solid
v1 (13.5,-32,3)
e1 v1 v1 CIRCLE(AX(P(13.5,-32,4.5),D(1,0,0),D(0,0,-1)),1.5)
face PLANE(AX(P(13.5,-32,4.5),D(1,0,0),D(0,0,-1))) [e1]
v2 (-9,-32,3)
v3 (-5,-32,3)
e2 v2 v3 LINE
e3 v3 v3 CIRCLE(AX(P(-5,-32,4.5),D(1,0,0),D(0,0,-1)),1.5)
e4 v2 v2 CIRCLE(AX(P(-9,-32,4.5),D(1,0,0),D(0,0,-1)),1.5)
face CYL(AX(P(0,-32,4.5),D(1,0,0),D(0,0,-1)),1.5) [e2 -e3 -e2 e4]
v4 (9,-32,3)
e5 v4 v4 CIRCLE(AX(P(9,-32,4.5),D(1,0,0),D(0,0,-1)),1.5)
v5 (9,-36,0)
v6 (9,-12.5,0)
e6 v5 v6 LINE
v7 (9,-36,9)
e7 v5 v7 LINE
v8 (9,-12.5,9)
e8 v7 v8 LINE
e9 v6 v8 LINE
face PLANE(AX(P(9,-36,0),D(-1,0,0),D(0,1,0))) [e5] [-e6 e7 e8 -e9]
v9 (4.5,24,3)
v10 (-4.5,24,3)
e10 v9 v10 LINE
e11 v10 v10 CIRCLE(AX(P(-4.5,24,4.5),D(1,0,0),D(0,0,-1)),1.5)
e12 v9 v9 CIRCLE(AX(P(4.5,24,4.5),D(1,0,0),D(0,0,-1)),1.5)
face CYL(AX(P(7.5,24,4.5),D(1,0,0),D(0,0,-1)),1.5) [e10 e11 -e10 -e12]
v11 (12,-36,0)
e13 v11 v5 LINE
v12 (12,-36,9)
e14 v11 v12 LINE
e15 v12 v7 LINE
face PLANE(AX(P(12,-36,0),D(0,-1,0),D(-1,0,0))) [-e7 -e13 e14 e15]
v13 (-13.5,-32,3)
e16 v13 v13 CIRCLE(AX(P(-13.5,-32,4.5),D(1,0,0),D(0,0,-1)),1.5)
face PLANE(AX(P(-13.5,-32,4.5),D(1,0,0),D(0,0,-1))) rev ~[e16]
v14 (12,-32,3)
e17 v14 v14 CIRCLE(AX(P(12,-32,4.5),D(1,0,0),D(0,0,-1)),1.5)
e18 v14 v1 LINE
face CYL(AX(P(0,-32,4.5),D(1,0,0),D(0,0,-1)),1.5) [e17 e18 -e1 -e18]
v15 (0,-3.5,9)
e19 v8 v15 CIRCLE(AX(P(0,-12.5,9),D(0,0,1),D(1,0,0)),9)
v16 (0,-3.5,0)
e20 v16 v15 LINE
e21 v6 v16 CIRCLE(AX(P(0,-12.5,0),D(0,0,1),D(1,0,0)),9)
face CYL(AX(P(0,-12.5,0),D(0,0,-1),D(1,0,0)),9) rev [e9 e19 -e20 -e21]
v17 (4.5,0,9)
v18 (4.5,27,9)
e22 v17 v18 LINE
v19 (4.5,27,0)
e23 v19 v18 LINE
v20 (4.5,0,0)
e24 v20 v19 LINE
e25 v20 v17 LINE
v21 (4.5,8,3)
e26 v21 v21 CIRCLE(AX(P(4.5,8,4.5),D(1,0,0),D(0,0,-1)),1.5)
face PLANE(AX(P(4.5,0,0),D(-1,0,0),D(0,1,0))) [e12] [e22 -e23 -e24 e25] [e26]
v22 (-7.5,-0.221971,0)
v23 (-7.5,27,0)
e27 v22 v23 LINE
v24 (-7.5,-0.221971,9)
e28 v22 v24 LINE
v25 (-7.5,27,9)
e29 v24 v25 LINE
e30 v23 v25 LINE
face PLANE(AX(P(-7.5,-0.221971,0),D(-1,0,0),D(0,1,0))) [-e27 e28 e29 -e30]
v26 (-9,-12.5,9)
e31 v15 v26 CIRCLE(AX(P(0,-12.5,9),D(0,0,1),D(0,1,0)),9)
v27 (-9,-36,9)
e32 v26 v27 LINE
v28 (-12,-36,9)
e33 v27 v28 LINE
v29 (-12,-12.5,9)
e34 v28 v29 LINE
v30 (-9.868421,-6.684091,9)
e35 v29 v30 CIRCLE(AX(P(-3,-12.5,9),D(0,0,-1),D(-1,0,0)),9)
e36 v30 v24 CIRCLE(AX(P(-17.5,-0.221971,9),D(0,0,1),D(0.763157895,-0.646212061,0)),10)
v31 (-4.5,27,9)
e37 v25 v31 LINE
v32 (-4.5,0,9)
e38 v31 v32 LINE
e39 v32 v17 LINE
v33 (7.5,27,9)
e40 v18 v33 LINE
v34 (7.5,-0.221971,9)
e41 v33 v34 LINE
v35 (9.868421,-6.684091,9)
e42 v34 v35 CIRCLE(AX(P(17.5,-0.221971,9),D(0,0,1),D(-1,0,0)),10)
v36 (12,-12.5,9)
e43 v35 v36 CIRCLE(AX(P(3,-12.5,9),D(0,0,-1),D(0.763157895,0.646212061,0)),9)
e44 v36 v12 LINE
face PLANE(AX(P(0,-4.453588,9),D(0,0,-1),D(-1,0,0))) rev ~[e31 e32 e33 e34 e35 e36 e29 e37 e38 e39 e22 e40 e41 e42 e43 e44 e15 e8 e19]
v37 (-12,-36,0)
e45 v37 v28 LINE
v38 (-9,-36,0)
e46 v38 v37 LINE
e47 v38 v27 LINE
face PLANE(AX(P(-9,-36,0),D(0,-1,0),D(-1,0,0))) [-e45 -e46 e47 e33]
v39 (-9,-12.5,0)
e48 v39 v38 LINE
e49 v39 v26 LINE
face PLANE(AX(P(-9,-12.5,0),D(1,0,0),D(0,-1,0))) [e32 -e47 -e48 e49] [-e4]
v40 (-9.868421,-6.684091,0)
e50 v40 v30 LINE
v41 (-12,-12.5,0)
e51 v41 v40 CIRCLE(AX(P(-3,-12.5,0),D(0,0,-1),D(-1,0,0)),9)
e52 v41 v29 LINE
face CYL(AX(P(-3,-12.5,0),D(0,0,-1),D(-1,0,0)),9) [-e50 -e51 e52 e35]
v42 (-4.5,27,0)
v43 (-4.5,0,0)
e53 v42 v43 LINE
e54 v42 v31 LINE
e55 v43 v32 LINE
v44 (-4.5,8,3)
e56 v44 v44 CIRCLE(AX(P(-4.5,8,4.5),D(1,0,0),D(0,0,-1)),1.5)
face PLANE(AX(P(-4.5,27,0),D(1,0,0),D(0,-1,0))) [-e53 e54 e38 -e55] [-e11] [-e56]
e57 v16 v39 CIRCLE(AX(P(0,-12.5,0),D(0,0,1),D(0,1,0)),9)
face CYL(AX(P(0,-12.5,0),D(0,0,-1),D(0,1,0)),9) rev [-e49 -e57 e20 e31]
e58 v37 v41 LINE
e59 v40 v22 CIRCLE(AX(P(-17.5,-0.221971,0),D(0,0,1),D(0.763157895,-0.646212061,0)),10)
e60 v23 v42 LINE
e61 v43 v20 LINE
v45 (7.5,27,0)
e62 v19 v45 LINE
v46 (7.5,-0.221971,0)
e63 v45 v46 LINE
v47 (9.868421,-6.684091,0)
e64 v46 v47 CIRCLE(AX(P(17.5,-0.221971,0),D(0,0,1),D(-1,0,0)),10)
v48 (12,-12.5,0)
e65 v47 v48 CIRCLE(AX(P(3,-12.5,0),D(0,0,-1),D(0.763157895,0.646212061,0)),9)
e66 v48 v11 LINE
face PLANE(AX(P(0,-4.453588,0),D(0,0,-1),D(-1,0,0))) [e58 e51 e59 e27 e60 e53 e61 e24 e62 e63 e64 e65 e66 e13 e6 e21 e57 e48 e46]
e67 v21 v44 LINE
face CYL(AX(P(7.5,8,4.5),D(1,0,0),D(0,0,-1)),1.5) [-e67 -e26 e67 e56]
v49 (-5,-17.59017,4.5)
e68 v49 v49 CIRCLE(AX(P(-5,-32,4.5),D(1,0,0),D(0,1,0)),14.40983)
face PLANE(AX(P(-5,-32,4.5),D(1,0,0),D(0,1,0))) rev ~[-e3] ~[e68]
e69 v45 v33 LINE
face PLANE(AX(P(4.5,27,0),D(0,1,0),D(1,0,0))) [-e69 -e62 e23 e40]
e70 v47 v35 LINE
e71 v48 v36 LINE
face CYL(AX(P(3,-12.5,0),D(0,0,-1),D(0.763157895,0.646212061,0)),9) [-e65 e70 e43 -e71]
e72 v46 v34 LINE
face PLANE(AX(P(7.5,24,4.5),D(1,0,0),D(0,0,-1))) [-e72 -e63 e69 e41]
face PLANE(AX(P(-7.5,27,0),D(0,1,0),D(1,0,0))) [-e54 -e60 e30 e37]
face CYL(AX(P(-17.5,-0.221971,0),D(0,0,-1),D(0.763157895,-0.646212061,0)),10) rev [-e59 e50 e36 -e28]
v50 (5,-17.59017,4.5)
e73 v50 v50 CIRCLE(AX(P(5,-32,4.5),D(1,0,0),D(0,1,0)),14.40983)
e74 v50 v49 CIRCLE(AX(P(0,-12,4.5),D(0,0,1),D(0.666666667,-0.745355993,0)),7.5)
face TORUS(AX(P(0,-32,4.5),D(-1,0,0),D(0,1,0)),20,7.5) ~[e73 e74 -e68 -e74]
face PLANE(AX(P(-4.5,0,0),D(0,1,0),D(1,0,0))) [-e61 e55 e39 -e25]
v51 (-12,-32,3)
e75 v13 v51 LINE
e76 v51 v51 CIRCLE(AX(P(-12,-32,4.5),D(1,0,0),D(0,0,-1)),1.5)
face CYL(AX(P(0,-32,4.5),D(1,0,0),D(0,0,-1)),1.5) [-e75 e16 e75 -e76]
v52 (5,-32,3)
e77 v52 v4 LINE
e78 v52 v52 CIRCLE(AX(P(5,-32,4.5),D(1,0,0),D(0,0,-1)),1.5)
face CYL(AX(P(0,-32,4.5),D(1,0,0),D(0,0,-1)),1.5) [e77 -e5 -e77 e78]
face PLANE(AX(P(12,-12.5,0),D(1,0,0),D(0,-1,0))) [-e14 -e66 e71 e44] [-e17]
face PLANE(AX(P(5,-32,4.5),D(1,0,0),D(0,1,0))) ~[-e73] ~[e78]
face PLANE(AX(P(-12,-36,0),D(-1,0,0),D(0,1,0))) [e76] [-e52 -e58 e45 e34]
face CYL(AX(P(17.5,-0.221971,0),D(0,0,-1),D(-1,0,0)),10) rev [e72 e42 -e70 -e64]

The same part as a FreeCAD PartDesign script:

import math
import FreeCAD as App
import Part
import Sketcher
from FreeCAD import Vector
Q = App.Units.Quantity

doc = App.newDocument("Part")
body = doc.addObject("PartDesign::Body", "Body")

# Sketch on XY plane
sketch1 = body.newObject("Sketcher::SketchObject", "Sketch")
sketch1.AttachmentSupport = (doc.getObject("XY_Plane"), [""])
sketch1.MapMode = "FlatFace"
sketch1.addGeometry(Part.LineSegment(Vector(-4.5, 27, 0), Vector(-7.5, 27, 0)), False)
sketch1.addGeometry(Part.LineSegment(Vector(-7.5, 27, 0), Vector(-7.5, -0.221971, 0)), False)
sketch1.addGeometry(Part.ArcOfCircle(Part.Circle(Vector(-17.5, -0.221971, 0), Vector(0, 0, 1), 10), math.radians(-40.256613), math.radians(0)), False)
sketch1.addGeometry(Part.ArcOfCircle(Part.Circle(Vector(-3, -12.5, 0), Vector(0, 0, 1), 9), math.radians(139.743387), math.radians(180)), False)
sketch1.addGeometry(Part.LineSegment(Vector(-12, -12.5, 0), Vector(-12, -36, 0)), False)
sketch1.addGeometry(Part.LineSegment(Vector(-12, -36, 0), Vector(-9, -36, 0)), False)
sketch1.addGeometry(Part.LineSegment(Vector(-9, -36, 0), Vector(-9, -12.5, 0)), False)
sketch1.addGeometry(Part.ArcOfCircle(Part.Circle(Vector(0, -12.5, 0), Vector(0, 0, 1), 9), math.radians(90), math.radians(180)), False)
sketch1.addGeometry(Part.ArcOfCircle(Part.Circle(Vector(0, -12.5, 0), Vector(0, 0, 1), 9), math.radians(0), math.radians(90)), False)
sketch1.addGeometry(Part.LineSegment(Vector(9, -12.5, 0), Vector(9, -36, 0)), False)
sketch1.addGeometry(Part.LineSegment(Vector(9, -36, 0), Vector(12, -36, 0)), False)
sketch1.addGeometry(Part.LineSegment(Vector(12, -36, 0), Vector(12, -12.5, 0)), False)
sketch1.addGeometry(Part.ArcOfCircle(Part.Circle(Vector(3, -12.5, 0), Vector(0, 0, 1), 9), math.radians(0), math.radians(40.256613)), False)
sketch1.addGeometry(Part.ArcOfCircle(Part.Circle(Vector(17.5, -0.221971, 0), Vector(0, 0, 1), 10), math.radians(180), math.radians(220.256613)), False)
sketch1.addGeometry(Part.LineSegment(Vector(7.5, -0.221971, 0), Vector(7.5, 27, 0)), False)
sketch1.addGeometry(Part.LineSegment(Vector(7.5, 27, 0), Vector(4.5, 27, 0)), False)
sketch1.addGeometry(Part.LineSegment(Vector(4.5, 27, 0), Vector(4.5, 0, 0)), False)
sketch1.addGeometry(Part.LineSegment(Vector(4.5, 0, 0), Vector(-4.5, 0, 0)), False)
sketch1.addGeometry(Part.LineSegment(Vector(-4.5, 0, 0), Vector(-4.5, 27, 0)), False)
sketch1.addConstraint(Sketcher.Constraint("Coincident", 0, 2, 1, 1))
sketch1.addConstraint(Sketcher.Constraint("Tangent", 1, 2, 2, 2))
sketch1.addConstraint(Sketcher.Constraint("Tangent", 2, 1, 3, 1))
sketch1.addConstraint(Sketcher.Constraint("Tangent", 3, 2, 4, 1))
sketch1.addConstraint(Sketcher.Constraint("Coincident", 4, 2, 5, 1))
sketch1.addConstraint(Sketcher.Constraint("Coincident", 5, 2, 6, 1))
sketch1.addConstraint(Sketcher.Constraint("Tangent", 6, 2, 7, 2))
sketch1.addConstraint(Sketcher.Constraint("Tangent", 7, 1, 8, 2))
sketch1.addConstraint(Sketcher.Constraint("Tangent", 8, 1, 9, 1))
sketch1.addConstraint(Sketcher.Constraint("Coincident", 9, 2, 10, 1))
sketch1.addConstraint(Sketcher.Constraint("Coincident", 10, 2, 11, 1))
sketch1.addConstraint(Sketcher.Constraint("Tangent", 11, 2, 12, 1))
sketch1.addConstraint(Sketcher.Constraint("Tangent", 12, 2, 13, 2))
sketch1.addConstraint(Sketcher.Constraint("Tangent", 13, 1, 14, 1))
sketch1.addConstraint(Sketcher.Constraint("Coincident", 14, 2, 15, 1))
sketch1.addConstraint(Sketcher.Constraint("Coincident", 15, 2, 16, 1))
sketch1.addConstraint(Sketcher.Constraint("Coincident", 16, 2, 17, 1))
sketch1.addConstraint(Sketcher.Constraint("Coincident", 17, 2, 18, 1))
sketch1.addConstraint(Sketcher.Constraint("Coincident", 18, 2, 0, 1))
sketch1.addConstraint(Sketcher.Constraint("Horizontal", 0))
sketch1.addConstraint(Sketcher.Constraint("Vertical", 1))
sketch1.addConstraint(Sketcher.Constraint("Vertical", 4))
sketch1.addConstraint(Sketcher.Constraint("Horizontal", 5))
sketch1.addConstraint(Sketcher.Constraint("Vertical", 6))
sketch1.addConstraint(Sketcher.Constraint("Vertical", 9))
sketch1.addConstraint(Sketcher.Constraint("Horizontal", 10))
sketch1.addConstraint(Sketcher.Constraint("Vertical", 11))
sketch1.addConstraint(Sketcher.Constraint("Vertical", 14))
sketch1.addConstraint(Sketcher.Constraint("Horizontal", 15))
sketch1.addConstraint(Sketcher.Constraint("Vertical", 16))
sketch1.addConstraint(Sketcher.Constraint("Horizontal", 17))
sketch1.addConstraint(Sketcher.Constraint("Vertical", 18))
sketch1.addConstraint(Sketcher.Constraint("Equal", 3, 7))
sketch1.addConstraint(Sketcher.Constraint("Equal", 7, 8))
sketch1.addConstraint(Sketcher.Constraint("Equal", 8, 12))
sketch1.addConstraint(Sketcher.Constraint("Equal", 2, 13))
sketch1.addConstraint(Sketcher.Constraint("Symmetric", 16, 2, 17, 2, -1, 1))
sketch1.addConstraint(Sketcher.Constraint("Symmetric", 3, 3, 12, 3, -2))
sketch1.addConstraint(Sketcher.Constraint("Symmetric", 5, 2, 9, 2, -2))
sketch1.addConstraint(Sketcher.Constraint("Symmetric", 0, 2, 14, 2, -2))
sketch1.addConstraint(Sketcher.Constraint("PointOnObject", 7, 1, -2))
sketch1.addConstraint(Sketcher.Constraint("Horizontal", 3, 3, 7, 3))
sketch1.addConstraint(Sketcher.Constraint("Equal", 0, 5))
sketch1.addConstraint(Sketcher.Constraint("Radius", 2, Q("10 mm")))
sketch1.addConstraint(Sketcher.Constraint("Radius", 3, Q("9 mm")))
sketch1.addConstraint(Sketcher.Constraint("DistanceX", 0, 2, 0, 1, Q("3 mm")))
sketch1.addConstraint(Sketcher.Constraint("DistanceX", 17, 2, 17, 1, Q("9 mm")))
sketch1.addConstraint(Sketcher.Constraint("DistanceY", 16, 2, 16, 1, Q("27 mm")))
sketch1.addConstraint(Sketcher.Constraint("DistanceY", 4, 2, 4, 1, Q("23.5 mm")))
sketch1.addConstraint(Sketcher.Constraint("DistanceY", 4, 2, -1, 1, Q("36 mm")))
pad1 = body.newObject("PartDesign::Pad", "Pad")
pad1.Profile = sketch1
pad1.Length = 9

# Sketch on YZ plane
sketch2 = body.newObject("Sketcher::SketchObject", "Sketch001")
sketch2.AttachmentSupport = (doc.getObject("YZ_Plane"), [""])
sketch2.MapMode = "FlatFace"
sketch2.addGeometry(Part.Circle(Vector(-32, 4.5, 0), Vector(0, 0, 1), 1.5), False)
sketch2.addConstraint(Sketcher.Constraint("Diameter", 0, Q("3 mm")))
sketch2.addConstraint(Sketcher.Constraint("DistanceX", 0, 3, -1, 1, Q("32 mm")))
sketch2.addConstraint(Sketcher.Constraint("DistanceY", -1, 1, 0, 3, Q("4.5 mm")))
pad2 = body.newObject("PartDesign::Pad", "Pad001")
pad2.Profile = sketch2
pad2.Length = 27
pad2.Midplane = True

# Sketch on XY plane
sketch3 = body.newObject("Sketcher::SketchObject", "Sketch002")
sketch3.AttachmentSupport = (doc.getObject("XY_Plane"), [""])
sketch3.MapMode = "FlatFace"
sketch3.AttachmentOffset = App.Placement(Vector(0, 0, 4.5), App.Rotation())
sketch3.addGeometry(Part.LineSegment(Vector(-5, -32, 0), Vector(5, -32, 0)), False)
sketch3.addGeometry(Part.LineSegment(Vector(5, -32, 0), Vector(5, -17.59017, 0)), False)
sketch3.addGeometry(Part.ArcOfCircle(Part.Circle(Vector(0, -12, 0), Vector(0, 0, 1), 7.5), math.radians(-48.189685), math.radians(228.189685)), False)
sketch3.addGeometry(Part.LineSegment(Vector(-5, -17.59017, 0), Vector(-5, -32, 0)), False)
sketch3.addGeometry(Part.LineSegment(Vector(-5, -32, 0), Vector(5, -32, 0)), True)  # axis
sketch3.addConstraint(Sketcher.Constraint("Coincident", 0, 2, 1, 1))
sketch3.addConstraint(Sketcher.Constraint("Coincident", 1, 2, 2, 1))
sketch3.addConstraint(Sketcher.Constraint("Coincident", 2, 2, 3, 1))
sketch3.addConstraint(Sketcher.Constraint("Coincident", 3, 2, 0, 1))
sketch3.addConstraint(Sketcher.Constraint("Horizontal", 0))
sketch3.addConstraint(Sketcher.Constraint("Vertical", 1))
sketch3.addConstraint(Sketcher.Constraint("Vertical", 3))
sketch3.addConstraint(Sketcher.Constraint("Horizontal", 4))
sketch3.addConstraint(Sketcher.Constraint("Coincident", 4, 1, 3, 2))
sketch3.addConstraint(Sketcher.Constraint("Symmetric", 1, 2, 2, 2, -2))
sketch3.addConstraint(Sketcher.Constraint("Vertical", 1, 2, 4, 2))
sketch3.addConstraint(Sketcher.Constraint("Radius", 2, Q("7.5 mm")))
sketch3.addConstraint(Sketcher.Constraint("DistanceX", 0, 1, 0, 2, Q("10 mm")))
sketch3.addConstraint(Sketcher.Constraint("DistanceY", 2, 3, -1, 1, Q("12 mm")))
sketch3.addConstraint(Sketcher.Constraint("DistanceY", 0, 2, -1, 1, Q("32 mm")))
revolution = body.newObject("PartDesign::Revolution", "Revolution")
revolution.Profile = sketch3
revolution.ReferenceAxis = (sketch3, ["Axis0"])
revolution.Angle = 360

# Sketch on YZ plane
sketch4 = body.newObject("Sketcher::SketchObject", "Sketch003")
sketch4.AttachmentSupport = (doc.getObject("YZ_Plane"), [""])
sketch4.MapMode = "FlatFace"
sketch4.AttachmentOffset = App.Placement(Vector(0, 0, 7.5), App.Rotation())
sketch4.addGeometry(Part.Circle(Vector(24, 4.5, 0), Vector(0, 0, 1), 1.5), False)
sketch4.addGeometry(Part.Circle(Vector(8, 4.5, 0), Vector(0, 0, 1), 1.5), False)
sketch4.addConstraint(Sketcher.Constraint("Equal", 0, 1))
sketch4.addConstraint(Sketcher.Constraint("Horizontal", 0, 3, 1, 3))
sketch4.addConstraint(Sketcher.Constraint("Diameter", 0, Q("3 mm")))
sketch4.addConstraint(Sketcher.Constraint("DistanceX", -1, 1, 0, 3, Q("24 mm")))
sketch4.addConstraint(Sketcher.Constraint("DistanceX", -1, 1, 1, 3, Q("8 mm")))
sketch4.addConstraint(Sketcher.Constraint("DistanceY", -1, 1, 0, 3, Q("4.5 mm")))
pad3 = body.newObject("PartDesign::Pad", "Pad002")
pad3.Profile = sketch4
pad3.Length = 15
pad3.Reversed = True

doc.recompute()
